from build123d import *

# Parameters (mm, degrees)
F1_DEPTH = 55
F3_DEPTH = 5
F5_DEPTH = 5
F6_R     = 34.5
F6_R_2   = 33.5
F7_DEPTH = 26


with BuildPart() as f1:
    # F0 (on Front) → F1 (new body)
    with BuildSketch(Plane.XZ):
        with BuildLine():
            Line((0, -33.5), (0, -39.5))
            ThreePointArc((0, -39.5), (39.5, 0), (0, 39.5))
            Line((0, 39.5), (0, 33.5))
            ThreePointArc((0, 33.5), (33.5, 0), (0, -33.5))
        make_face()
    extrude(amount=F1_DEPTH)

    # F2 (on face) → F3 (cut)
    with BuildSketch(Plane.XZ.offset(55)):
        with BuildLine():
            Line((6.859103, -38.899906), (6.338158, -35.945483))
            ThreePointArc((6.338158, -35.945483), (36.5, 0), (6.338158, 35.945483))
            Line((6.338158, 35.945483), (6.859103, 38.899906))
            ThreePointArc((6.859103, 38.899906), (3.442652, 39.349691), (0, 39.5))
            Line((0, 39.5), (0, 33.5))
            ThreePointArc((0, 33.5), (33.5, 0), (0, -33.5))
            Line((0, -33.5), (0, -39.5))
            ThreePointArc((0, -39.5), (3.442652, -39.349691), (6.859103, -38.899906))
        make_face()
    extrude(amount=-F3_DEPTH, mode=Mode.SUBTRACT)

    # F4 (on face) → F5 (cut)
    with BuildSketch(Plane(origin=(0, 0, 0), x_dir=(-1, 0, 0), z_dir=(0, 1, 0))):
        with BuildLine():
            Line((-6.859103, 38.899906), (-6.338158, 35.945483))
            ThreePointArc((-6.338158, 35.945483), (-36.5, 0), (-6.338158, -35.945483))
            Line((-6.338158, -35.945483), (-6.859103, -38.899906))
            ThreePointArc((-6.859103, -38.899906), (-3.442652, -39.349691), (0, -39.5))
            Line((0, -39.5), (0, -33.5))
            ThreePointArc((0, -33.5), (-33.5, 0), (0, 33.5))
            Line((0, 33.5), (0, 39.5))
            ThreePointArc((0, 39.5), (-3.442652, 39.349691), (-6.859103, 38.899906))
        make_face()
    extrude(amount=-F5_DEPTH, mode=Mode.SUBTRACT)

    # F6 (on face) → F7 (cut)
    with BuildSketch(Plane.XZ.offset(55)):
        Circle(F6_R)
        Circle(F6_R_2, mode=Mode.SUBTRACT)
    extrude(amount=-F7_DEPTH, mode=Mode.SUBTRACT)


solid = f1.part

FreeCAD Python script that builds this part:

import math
import FreeCAD as App
import Part
import Sketcher
from FreeCAD import Vector
Q = App.Units.Quantity

doc = App.newDocument("Part")
body = doc.addObject("PartDesign::Body", "Body")

sketch1 = body.newObject("Sketcher::SketchObject", "Sketch")
sketch1.AttachmentSupport = (doc.getObject("XZ_Plane"), [""])
sketch1.MapMode = "FlatFace"
sketch1.addGeometry([
    Part.LineSegment(Vector(0, -34, 0), Vector(0, -40, 0)),
    Part.ArcOfCircle(Part.Circle(Vector(0, 0, 0), Vector(0, 0, 1), 40), math.radians(-90), math.radians(90)),
    Part.LineSegment(Vector(0, 40, 0), Vector(0, 34, 0)),
    Part.ArcOfCircle(Part.Circle(Vector(0, 0, 0), Vector(0, 0, 1), 34), math.radians(-90), math.radians(90)),
], False)
sketch1.addConstraint([
    Sketcher.Constraint("Coincident", 0, 2, 1, 1),
    Sketcher.Constraint("Coincident", 1, 2, 2, 1),
    Sketcher.Constraint("Coincident", 2, 2, 3, 2),
    Sketcher.Constraint("Coincident", 3, 1, 0, 1),
    Sketcher.Constraint("Vertical", 0),
    Sketcher.Constraint("Vertical", 2),
    Sketcher.Constraint("Coincident", 1, 3, -1, 1),
    Sketcher.Constraint("Coincident", 3, 3, -1, 1),
    Sketcher.Constraint("PointOnObject", 0, 2, -2),
    Sketcher.Constraint("PointOnObject", 1, 2, -2),
    Sketcher.Constraint("Radius", 1, Q("39.5 mm")),
    Sketcher.Constraint("Radius", 3, Q("33.5 mm")),
])
pad1 = body.newObject("PartDesign::Pad", "Pad")
pad1.Profile = sketch1
pad1.Length = 55

sketch2 = body.newObject("Sketcher::SketchObject", "Sketch001")
sketch2.AttachmentSupport = (doc.getObject("XZ_Plane"), [""])
sketch2.MapMode = "FlatFace"
sketch2.AttachmentOffset = App.Placement(Vector(0, 0, 55), App.Rotation())
sketch2.addGeometry([
    Part.LineSegment(Vector(6.9, -38.9, 0), Vector(6.3, -35.9, 0)),
    Part.ArcOfCircle(Part.Circle(Vector(0, 0, 0), Vector(0, 0, 1), 36.5), math.radians(-80), math.radians(80)),
    Part.LineSegment(Vector(6.3, 35.9, 0), Vector(6.9, 38.9, 0)),
    Part.ArcOfCircle(Part.Circle(Vector(0, 0, 0), Vector(0, 0, 1), 39.5), math.radians(80), math.radians(90)),
    Part.LineSegment(Vector(0, 39.5, 0), Vector(0, 33.5, 0)),
    Part.ArcOfCircle(Part.Circle(Vector(0, 0, 0), Vector(0, 0, 1), 33.5), math.radians(-90), math.radians(90)),
    Part.LineSegment(Vector(0, -33.5, 0), Vector(0, -39.5, 0)),
    Part.ArcOfCircle(Part.Circle(Vector(0, 0, 0), Vector(0, 0, 1), 39.5), math.radians(-90), math.radians(-80)),
], False)
sketch2.addConstraint([
    Sketcher.Constraint("Coincident", 0, 2, 1, 1),
    Sketcher.Constraint("Coincident", 1, 2, 2, 1),
    Sketcher.Constraint("Coincident", 2, 2, 3, 1),
    Sketcher.Constraint("Coincident", 3, 2, 4, 1),
    Sketcher.Constraint("Coincident", 4, 2, 5, 2),
    Sketcher.Constraint("Coincident", 5, 1, 6, 1),
    Sketcher.Constraint("Coincident", 6, 2, 7, 1),
    Sketcher.Constraint("Coincident", 7, 2, 0, 1),
    Sketcher.Constraint("Vertical", 4),
    Sketcher.Constraint("Vertical", 6),
    Sketcher.Constraint("Coincident", 1, 3, -1, 1),
    Sketcher.Constraint("Coincident", 5, 3, -1, 1),
    Sketcher.Constraint("Equal", 3, 7),
    Sketcher.Constraint("Symmetric", 3, 2, 6, 2, -1, 1),
    Sketcher.Constraint("Symmetric", 2, 2, 7, 2, -1),
    Sketcher.Constraint("PointOnObject", 3, 2, -2),
    Sketcher.Constraint("Vertical", 0, 2, 1, 2),
    Sketcher.Constraint("Radius", 1, Q("36.5 mm")),
    Sketcher.Constraint("Radius", 5, Q("33.5 mm")),
    Sketcher.Constraint("DistanceY", 4, 2, 4, 1, Q("6 mm")),
    Sketcher.Constraint("Angle", 0, Q("100.00001 deg")),
    Sketcher.Constraint("Distance", 0, Q("3 mm")),
    Sketcher.Constraint("Radius", 3, Q("39.499853 mm")),
    Sketcher.Constraint("DistanceY", 0, 2, 3, 3, Q("35.94563 mm")),
])
pocket1 = body.newObject("PartDesign::Pocket", "Pocket")
pocket1.Profile = sketch2
pocket1.Length = 5

sketch3 = body.newObject("Sketcher::SketchObject", "Sketch002")
sketch3.AttachmentSupport = (doc.getObject("XZ_Plane"), [""])
sketch3.MapMode = "FlatFace"
sketch3.addGeometry([
    Part.LineSegment(Vector(6.9, 38.9, 0), Vector(6.3, 35.9, 0)),
    Part.ArcOfCircle(Part.Circle(Vector(0, 0, 0), Vector(0, 0, 1), 36.5), math.radians(-80), math.radians(80)),
    Part.LineSegment(Vector(6.3, -35.9, 0), Vector(6.9, -38.9, 0)),
    Part.ArcOfCircle(Part.Circle(Vector(0, 0, 0), Vector(0, 0, 1), 39.5), math.radians(-90), math.radians(-80)),
    Part.LineSegment(Vector(0, -39.5, 0), Vector(0, -33.5, 0)),
    Part.ArcOfCircle(Part.Circle(Vector(0, 0, 0), Vector(0, 0, 1), 33.5), math.radians(-90), math.radians(90)),
    Part.LineSegment(Vector(0, 33.5, 0), Vector(0, 39.5, 0)),
    Part.ArcOfCircle(Part.Circle(Vector(0, 0, 0), Vector(0, 0, 1), 39.5), math.radians(80), math.radians(90)),
], False)
sketch3.addConstraint([
    Sketcher.Constraint("Coincident", 0, 2, 1, 2),
    Sketcher.Constraint("Coincident", 1, 1, 2, 1),
    Sketcher.Constraint("Coincident", 2, 2, 3, 2),
    Sketcher.Constraint("Coincident", 3, 1, 4, 1),
    Sketcher.Constraint("Coincident", 4, 2, 5, 1),
    Sketcher.Constraint("Coincident", 5, 2, 6, 1),
    Sketcher.Constraint("Coincident", 6, 2, 7, 2),
    Sketcher.Constraint("Coincident", 7, 1, 0, 1),
    Sketcher.Constraint("Vertical", 4),
    Sketcher.Constraint("Vertical", 6),
    Sketcher.Constraint("Coincident", 1, 3, -1, 1),
    Sketcher.Constraint("Coincident", 5, 3, -1, 1),
    Sketcher.Constraint("Equal", 3, 7),
    Sketcher.Constraint("Symmetric", 3, 1, 6, 2, -1, 1),
    Sketcher.Constraint("Symmetric", 2, 2, 7, 1, -1),
    Sketcher.Constraint("PointOnObject", 3, 1, -2),
    Sketcher.Constraint("Vertical", 0, 2, 1, 1),
    Sketcher.Constraint("Radius", 1, Q("36.5 mm")),
    Sketcher.Constraint("Radius", 5, Q("33.5 mm")),
    Sketcher.Constraint("DistanceY", 4, 1, 4, 2, Q("6 mm")),
    Sketcher.Constraint("Angle", 0, Q("-100.00001 deg")),
    Sketcher.Constraint("Distance", 0, Q("3 mm")),
    Sketcher.Constraint("Radius", 3, Q("39.499853 mm")),
    Sketcher.Constraint("DistanceY", 3, 3, 0, 2, Q("35.94563 mm")),
])
pocket2 = body.newObject("PartDesign::Pocket", "Pocket001")
pocket2.Profile = sketch3
pocket2.Length = 5
pocket2.Reversed = True

sketch4 = body.newObject("Sketcher::SketchObject", "Sketch003")
sketch4.AttachmentSupport = (doc.getObject("XZ_Plane"), [""])
sketch4.MapMode = "FlatFace"
sketch4.AttachmentOffset = App.Placement(Vector(0, 0, 55), App.Rotation())
sketch4.addGeometry([
    Part.Circle(Vector(0, 0, 0), Vector(0, 0, 1), 34),
    Part.Circle(Vector(0, 0, 0), Vector(0, 0, 1), 34),
], False)
sketch4.addConstraint([
    Sketcher.Constraint("Coincident", 0, 3, -1, 1),
    Sketcher.Constraint("Coincident", 1, 3, -1, 1),
    Sketcher.Constraint("Diameter", 0, Q("69 mm")),
    Sketcher.Constraint("Diameter", 1, Q("67 mm")),
])
pocket3 = body.newObject("PartDesign::Pocket", "Pocket002")
pocket3.Profile = sketch4
pocket3.Length = 26

doc.recompute()
